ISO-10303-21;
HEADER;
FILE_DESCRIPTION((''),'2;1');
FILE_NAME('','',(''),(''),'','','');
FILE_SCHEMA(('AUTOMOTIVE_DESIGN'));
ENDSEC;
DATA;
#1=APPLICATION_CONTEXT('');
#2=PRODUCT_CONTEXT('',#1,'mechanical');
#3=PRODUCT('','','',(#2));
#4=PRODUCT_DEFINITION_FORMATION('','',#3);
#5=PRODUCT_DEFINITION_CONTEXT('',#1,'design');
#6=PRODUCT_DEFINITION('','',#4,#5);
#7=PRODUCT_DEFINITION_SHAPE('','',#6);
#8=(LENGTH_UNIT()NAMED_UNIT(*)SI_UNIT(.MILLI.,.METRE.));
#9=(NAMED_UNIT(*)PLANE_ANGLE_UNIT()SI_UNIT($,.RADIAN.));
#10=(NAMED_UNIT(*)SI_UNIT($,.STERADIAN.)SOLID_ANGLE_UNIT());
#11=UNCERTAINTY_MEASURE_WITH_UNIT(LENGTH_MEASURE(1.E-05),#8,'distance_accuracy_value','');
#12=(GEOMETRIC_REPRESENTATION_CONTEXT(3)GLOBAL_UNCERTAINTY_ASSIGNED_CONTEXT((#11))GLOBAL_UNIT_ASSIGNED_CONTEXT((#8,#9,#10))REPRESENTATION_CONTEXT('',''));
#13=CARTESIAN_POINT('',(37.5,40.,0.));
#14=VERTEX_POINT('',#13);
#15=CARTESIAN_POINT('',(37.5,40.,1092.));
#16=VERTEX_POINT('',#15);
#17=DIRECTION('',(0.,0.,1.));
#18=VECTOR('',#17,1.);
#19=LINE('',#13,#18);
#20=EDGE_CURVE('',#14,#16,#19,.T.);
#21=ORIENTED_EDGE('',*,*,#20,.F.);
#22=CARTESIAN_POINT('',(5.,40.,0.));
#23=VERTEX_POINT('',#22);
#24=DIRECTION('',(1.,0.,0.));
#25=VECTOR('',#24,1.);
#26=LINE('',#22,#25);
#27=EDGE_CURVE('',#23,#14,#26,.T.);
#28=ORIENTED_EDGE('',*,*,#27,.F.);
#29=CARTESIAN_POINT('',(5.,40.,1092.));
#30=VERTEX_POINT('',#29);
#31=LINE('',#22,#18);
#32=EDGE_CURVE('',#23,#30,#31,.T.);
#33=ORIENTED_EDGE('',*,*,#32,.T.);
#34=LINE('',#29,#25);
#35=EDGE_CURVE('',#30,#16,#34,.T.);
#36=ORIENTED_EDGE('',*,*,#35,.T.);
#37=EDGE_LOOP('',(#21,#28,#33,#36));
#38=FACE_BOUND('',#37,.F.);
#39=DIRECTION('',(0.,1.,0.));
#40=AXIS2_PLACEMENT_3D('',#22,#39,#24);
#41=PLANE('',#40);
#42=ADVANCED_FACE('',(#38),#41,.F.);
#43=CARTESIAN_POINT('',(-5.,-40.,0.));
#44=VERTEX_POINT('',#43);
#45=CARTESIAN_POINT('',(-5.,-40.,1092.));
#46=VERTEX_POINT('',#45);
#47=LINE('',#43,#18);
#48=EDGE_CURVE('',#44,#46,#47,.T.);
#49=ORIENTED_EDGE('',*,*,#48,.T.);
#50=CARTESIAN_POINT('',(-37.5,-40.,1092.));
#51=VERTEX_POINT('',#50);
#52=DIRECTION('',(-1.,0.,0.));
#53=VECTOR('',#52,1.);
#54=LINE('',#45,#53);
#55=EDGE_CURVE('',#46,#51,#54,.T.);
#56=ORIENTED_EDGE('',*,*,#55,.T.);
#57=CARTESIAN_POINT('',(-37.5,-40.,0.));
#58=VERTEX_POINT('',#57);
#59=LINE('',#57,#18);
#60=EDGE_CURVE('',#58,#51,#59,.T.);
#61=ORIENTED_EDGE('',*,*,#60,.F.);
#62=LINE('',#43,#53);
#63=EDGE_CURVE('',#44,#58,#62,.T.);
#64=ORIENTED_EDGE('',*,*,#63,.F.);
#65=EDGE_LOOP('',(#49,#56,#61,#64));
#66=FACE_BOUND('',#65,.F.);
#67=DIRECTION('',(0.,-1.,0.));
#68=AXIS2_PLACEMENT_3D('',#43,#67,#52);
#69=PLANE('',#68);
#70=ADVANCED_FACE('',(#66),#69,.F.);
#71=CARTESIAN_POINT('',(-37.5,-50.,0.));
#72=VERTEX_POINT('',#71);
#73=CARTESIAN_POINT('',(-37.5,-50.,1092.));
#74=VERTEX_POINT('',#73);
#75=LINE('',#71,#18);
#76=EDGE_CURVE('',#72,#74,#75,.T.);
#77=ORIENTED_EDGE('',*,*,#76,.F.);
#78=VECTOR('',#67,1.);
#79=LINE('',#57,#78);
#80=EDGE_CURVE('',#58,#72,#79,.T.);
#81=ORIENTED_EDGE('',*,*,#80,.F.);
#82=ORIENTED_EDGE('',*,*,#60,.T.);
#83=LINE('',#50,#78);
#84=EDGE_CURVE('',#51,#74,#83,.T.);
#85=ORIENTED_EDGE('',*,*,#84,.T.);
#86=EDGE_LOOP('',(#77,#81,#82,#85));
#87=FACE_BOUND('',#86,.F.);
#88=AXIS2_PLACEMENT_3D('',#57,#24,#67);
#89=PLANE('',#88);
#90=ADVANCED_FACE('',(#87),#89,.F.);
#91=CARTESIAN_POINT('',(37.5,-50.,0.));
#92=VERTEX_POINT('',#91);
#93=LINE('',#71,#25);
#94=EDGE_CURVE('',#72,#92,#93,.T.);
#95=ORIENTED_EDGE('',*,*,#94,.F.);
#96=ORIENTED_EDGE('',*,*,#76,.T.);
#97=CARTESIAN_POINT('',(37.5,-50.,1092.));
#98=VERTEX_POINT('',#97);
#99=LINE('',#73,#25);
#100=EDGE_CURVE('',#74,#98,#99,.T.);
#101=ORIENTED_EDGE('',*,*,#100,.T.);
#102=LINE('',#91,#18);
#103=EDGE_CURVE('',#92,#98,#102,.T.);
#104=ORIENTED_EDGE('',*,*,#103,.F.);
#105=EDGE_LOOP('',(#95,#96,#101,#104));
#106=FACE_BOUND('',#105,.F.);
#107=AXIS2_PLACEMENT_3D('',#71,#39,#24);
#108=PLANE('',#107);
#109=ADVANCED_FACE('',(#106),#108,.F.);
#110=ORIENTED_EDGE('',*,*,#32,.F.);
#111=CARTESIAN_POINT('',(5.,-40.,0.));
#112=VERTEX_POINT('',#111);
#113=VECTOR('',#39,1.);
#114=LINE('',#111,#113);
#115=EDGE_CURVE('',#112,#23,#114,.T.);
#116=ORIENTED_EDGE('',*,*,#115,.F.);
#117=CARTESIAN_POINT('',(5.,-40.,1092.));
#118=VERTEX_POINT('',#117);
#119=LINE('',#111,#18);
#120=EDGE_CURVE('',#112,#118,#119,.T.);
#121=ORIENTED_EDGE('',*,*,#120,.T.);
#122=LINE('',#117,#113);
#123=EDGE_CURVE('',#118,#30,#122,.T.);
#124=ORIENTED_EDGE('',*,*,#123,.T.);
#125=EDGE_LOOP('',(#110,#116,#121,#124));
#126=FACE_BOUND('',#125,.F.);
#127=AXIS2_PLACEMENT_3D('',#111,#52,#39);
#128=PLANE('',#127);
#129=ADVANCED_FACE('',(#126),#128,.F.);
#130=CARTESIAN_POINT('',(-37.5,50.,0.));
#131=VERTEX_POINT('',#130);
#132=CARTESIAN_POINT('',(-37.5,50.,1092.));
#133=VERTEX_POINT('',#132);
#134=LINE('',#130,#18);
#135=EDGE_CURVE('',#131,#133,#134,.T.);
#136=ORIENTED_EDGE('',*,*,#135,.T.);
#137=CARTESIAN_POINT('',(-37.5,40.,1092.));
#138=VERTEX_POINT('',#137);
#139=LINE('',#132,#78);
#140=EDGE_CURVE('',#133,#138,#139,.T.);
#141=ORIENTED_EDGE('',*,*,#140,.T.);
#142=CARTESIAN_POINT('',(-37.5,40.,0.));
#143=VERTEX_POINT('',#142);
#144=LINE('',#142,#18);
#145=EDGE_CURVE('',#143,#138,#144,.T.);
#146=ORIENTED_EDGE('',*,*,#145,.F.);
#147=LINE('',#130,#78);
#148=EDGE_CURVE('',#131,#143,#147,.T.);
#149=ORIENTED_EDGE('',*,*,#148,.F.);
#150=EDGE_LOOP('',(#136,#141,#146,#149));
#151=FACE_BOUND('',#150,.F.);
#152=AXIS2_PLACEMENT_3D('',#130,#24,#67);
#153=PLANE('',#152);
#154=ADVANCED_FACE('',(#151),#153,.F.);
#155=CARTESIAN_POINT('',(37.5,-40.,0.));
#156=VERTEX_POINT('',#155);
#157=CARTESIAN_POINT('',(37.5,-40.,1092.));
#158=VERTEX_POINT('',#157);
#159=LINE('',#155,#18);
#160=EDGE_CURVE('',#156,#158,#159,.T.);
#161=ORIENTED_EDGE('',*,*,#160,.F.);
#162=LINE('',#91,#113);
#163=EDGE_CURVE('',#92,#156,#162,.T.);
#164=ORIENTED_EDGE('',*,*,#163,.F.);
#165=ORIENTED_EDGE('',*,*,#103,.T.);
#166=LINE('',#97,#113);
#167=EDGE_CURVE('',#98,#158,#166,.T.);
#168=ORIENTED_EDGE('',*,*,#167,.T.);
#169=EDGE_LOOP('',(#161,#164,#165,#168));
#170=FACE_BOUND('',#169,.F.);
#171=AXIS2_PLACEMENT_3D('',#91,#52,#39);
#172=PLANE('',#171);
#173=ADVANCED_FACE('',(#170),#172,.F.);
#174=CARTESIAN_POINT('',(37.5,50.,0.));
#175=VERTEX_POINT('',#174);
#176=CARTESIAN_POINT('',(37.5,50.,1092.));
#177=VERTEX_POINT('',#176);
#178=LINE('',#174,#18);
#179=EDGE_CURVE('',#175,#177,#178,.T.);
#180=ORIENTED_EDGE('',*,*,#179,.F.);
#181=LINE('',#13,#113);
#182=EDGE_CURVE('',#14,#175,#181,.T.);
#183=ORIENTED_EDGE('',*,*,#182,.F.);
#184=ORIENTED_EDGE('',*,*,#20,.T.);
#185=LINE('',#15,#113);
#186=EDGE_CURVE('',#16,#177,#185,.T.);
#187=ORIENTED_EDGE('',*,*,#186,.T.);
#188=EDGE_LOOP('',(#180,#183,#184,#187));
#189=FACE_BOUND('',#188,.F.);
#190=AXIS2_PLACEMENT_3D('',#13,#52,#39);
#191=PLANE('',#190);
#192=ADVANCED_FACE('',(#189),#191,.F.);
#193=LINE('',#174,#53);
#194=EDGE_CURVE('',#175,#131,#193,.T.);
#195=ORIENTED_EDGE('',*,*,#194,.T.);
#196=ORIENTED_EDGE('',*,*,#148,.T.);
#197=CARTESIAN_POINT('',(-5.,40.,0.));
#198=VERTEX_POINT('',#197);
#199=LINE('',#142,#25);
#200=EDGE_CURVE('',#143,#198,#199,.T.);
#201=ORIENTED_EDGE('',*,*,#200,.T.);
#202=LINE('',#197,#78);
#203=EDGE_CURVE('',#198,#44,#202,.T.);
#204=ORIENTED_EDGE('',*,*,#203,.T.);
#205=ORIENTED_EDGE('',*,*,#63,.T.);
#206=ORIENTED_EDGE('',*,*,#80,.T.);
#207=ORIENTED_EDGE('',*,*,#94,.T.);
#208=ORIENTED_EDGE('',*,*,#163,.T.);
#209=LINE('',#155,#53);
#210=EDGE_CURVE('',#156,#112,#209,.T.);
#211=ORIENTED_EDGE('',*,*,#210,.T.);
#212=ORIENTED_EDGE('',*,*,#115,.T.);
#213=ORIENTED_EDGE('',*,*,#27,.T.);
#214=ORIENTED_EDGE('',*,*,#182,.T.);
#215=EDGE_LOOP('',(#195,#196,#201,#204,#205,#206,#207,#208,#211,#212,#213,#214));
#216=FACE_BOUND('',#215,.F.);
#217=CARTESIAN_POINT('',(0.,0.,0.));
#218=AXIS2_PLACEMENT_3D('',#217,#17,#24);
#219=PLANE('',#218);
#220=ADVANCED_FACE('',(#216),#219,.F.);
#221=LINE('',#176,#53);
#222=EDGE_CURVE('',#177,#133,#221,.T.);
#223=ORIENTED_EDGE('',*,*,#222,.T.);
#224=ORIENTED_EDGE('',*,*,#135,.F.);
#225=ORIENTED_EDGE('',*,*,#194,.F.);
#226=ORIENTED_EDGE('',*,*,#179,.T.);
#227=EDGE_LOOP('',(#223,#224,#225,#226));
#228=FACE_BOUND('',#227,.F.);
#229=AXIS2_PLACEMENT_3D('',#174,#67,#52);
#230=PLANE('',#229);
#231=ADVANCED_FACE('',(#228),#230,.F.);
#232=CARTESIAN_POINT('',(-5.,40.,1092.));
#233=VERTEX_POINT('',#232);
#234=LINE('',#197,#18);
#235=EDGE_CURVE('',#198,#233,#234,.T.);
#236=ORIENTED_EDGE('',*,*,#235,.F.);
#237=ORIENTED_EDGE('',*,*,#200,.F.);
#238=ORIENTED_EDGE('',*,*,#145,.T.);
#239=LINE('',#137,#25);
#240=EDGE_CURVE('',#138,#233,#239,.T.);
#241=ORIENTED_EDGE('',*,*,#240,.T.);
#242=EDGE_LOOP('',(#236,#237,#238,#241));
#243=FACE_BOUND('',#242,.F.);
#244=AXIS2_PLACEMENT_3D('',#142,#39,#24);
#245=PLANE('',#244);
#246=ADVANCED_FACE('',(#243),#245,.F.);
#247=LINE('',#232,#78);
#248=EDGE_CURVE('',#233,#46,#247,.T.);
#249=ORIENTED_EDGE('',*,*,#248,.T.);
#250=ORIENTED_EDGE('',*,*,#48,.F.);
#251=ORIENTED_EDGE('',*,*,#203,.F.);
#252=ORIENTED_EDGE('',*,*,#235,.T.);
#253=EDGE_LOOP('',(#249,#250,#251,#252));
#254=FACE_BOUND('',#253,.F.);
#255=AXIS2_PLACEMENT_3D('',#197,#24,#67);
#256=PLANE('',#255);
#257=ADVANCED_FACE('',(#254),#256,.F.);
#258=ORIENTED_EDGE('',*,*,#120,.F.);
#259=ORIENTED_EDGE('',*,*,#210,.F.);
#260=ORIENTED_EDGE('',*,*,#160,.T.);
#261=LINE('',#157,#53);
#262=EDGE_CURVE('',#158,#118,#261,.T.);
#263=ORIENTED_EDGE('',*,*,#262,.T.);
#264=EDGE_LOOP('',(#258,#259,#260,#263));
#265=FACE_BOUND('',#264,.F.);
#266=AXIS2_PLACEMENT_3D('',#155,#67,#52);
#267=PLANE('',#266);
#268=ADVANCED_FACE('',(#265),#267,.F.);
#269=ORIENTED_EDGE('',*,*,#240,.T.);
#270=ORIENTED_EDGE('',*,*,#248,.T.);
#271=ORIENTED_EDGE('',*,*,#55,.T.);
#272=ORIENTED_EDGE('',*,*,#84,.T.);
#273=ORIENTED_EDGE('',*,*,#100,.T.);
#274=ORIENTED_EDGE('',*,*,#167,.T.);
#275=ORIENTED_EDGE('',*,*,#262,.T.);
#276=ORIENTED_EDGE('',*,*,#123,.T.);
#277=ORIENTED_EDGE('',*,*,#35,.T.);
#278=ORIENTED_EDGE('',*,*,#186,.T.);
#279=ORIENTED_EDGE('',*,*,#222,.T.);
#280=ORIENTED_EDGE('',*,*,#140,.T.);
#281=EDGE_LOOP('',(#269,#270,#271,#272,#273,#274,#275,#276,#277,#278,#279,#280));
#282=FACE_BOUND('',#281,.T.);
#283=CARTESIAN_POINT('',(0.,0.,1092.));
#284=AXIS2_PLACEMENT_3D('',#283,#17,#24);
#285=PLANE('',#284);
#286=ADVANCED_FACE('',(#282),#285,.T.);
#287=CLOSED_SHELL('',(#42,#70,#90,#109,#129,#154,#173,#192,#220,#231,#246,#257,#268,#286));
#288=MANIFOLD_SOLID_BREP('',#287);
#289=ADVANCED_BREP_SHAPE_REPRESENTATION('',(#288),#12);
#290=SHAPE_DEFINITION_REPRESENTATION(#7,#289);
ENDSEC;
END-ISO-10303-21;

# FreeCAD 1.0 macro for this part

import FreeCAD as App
import Part
import Sketcher

V = App.Vector
Q = App.Units.Quantity


def add_polygon(sketch, points):
    """Adds a closed chain of lines whose ends are joined by coincident constraints."""
    first, n = sketch.GeometryCount, len(points)
    for a, b in zip(points, points[1:] + points[:1]):
        sketch.addGeometry(Part.LineSegment(App.Vector(*a, 0), App.Vector(*b, 0)), False)
    for i in range(n):
        sketch.addConstraint(Sketcher.Constraint("Coincident", first + i, 2, first + (i + 1) % n, 1))

doc = App.newDocument("Part")
body = doc.addObject("PartDesign::Body", "Body")

# Sketch on XY plane
sketch1 = doc.addObject("Sketcher::SketchObject", "Sketch")
body.addObject(sketch1)
sketch1.AttachmentSupport = (doc.XY_Plane, [""])
sketch1.MapMode = "FlatFace"
add_polygon(sketch1, [(-38, -50), (38, -50), (38, -40), (5, -40), (5, 40), (38, 40), (38, 50), (-38, 50), (-38, 40), (-5, 40), (-5, -40), (-38, -40)])  # lines 0-11
sketch1.addConstraint([
    Sketcher.Constraint("Horizontal", 0),
    Sketcher.Constraint("Vertical", 1),
    Sketcher.Constraint("Horizontal", 2),
    Sketcher.Constraint("Vertical", 3),
    Sketcher.Constraint("Horizontal", 4),
    Sketcher.Constraint("Vertical", 5),
    Sketcher.Constraint("Horizontal", 6),
    Sketcher.Constraint("Vertical", 7),
    Sketcher.Constraint("Horizontal", 8),
    Sketcher.Constraint("Vertical", 9),
    Sketcher.Constraint("Horizontal", 10),
    Sketcher.Constraint("Vertical", 11),
    Sketcher.Constraint("Symmetric", 0, 2, 6, 2, -1, 1),
    Sketcher.Constraint("Symmetric", 2, 2, 8, 2, -1, 1),
    Sketcher.Constraint("Symmetric", 4, 2, 10, 2, -1, 1),
    Sketcher.Constraint("Symmetric", 4, 2, 7, 2, -2),
    Sketcher.Constraint("DistanceX", 0, 1, 0, 2, Q("75 mm")),
    Sketcher.Constraint("DistanceY", 1, 1, 1, 2, Q("10 mm")),
    Sketcher.Constraint("DistanceY", 3, 1, 3, 2, Q("80 mm")),
    Sketcher.Constraint("DistanceX", 2, 2, 2, 1, Q("32.5 mm")),
])
pad1 = doc.addObject("PartDesign::Pad", "Pad")
body.addObject(pad1)
pad1.Profile = sketch1
pad1.Length = 1092

doc.recompute()
